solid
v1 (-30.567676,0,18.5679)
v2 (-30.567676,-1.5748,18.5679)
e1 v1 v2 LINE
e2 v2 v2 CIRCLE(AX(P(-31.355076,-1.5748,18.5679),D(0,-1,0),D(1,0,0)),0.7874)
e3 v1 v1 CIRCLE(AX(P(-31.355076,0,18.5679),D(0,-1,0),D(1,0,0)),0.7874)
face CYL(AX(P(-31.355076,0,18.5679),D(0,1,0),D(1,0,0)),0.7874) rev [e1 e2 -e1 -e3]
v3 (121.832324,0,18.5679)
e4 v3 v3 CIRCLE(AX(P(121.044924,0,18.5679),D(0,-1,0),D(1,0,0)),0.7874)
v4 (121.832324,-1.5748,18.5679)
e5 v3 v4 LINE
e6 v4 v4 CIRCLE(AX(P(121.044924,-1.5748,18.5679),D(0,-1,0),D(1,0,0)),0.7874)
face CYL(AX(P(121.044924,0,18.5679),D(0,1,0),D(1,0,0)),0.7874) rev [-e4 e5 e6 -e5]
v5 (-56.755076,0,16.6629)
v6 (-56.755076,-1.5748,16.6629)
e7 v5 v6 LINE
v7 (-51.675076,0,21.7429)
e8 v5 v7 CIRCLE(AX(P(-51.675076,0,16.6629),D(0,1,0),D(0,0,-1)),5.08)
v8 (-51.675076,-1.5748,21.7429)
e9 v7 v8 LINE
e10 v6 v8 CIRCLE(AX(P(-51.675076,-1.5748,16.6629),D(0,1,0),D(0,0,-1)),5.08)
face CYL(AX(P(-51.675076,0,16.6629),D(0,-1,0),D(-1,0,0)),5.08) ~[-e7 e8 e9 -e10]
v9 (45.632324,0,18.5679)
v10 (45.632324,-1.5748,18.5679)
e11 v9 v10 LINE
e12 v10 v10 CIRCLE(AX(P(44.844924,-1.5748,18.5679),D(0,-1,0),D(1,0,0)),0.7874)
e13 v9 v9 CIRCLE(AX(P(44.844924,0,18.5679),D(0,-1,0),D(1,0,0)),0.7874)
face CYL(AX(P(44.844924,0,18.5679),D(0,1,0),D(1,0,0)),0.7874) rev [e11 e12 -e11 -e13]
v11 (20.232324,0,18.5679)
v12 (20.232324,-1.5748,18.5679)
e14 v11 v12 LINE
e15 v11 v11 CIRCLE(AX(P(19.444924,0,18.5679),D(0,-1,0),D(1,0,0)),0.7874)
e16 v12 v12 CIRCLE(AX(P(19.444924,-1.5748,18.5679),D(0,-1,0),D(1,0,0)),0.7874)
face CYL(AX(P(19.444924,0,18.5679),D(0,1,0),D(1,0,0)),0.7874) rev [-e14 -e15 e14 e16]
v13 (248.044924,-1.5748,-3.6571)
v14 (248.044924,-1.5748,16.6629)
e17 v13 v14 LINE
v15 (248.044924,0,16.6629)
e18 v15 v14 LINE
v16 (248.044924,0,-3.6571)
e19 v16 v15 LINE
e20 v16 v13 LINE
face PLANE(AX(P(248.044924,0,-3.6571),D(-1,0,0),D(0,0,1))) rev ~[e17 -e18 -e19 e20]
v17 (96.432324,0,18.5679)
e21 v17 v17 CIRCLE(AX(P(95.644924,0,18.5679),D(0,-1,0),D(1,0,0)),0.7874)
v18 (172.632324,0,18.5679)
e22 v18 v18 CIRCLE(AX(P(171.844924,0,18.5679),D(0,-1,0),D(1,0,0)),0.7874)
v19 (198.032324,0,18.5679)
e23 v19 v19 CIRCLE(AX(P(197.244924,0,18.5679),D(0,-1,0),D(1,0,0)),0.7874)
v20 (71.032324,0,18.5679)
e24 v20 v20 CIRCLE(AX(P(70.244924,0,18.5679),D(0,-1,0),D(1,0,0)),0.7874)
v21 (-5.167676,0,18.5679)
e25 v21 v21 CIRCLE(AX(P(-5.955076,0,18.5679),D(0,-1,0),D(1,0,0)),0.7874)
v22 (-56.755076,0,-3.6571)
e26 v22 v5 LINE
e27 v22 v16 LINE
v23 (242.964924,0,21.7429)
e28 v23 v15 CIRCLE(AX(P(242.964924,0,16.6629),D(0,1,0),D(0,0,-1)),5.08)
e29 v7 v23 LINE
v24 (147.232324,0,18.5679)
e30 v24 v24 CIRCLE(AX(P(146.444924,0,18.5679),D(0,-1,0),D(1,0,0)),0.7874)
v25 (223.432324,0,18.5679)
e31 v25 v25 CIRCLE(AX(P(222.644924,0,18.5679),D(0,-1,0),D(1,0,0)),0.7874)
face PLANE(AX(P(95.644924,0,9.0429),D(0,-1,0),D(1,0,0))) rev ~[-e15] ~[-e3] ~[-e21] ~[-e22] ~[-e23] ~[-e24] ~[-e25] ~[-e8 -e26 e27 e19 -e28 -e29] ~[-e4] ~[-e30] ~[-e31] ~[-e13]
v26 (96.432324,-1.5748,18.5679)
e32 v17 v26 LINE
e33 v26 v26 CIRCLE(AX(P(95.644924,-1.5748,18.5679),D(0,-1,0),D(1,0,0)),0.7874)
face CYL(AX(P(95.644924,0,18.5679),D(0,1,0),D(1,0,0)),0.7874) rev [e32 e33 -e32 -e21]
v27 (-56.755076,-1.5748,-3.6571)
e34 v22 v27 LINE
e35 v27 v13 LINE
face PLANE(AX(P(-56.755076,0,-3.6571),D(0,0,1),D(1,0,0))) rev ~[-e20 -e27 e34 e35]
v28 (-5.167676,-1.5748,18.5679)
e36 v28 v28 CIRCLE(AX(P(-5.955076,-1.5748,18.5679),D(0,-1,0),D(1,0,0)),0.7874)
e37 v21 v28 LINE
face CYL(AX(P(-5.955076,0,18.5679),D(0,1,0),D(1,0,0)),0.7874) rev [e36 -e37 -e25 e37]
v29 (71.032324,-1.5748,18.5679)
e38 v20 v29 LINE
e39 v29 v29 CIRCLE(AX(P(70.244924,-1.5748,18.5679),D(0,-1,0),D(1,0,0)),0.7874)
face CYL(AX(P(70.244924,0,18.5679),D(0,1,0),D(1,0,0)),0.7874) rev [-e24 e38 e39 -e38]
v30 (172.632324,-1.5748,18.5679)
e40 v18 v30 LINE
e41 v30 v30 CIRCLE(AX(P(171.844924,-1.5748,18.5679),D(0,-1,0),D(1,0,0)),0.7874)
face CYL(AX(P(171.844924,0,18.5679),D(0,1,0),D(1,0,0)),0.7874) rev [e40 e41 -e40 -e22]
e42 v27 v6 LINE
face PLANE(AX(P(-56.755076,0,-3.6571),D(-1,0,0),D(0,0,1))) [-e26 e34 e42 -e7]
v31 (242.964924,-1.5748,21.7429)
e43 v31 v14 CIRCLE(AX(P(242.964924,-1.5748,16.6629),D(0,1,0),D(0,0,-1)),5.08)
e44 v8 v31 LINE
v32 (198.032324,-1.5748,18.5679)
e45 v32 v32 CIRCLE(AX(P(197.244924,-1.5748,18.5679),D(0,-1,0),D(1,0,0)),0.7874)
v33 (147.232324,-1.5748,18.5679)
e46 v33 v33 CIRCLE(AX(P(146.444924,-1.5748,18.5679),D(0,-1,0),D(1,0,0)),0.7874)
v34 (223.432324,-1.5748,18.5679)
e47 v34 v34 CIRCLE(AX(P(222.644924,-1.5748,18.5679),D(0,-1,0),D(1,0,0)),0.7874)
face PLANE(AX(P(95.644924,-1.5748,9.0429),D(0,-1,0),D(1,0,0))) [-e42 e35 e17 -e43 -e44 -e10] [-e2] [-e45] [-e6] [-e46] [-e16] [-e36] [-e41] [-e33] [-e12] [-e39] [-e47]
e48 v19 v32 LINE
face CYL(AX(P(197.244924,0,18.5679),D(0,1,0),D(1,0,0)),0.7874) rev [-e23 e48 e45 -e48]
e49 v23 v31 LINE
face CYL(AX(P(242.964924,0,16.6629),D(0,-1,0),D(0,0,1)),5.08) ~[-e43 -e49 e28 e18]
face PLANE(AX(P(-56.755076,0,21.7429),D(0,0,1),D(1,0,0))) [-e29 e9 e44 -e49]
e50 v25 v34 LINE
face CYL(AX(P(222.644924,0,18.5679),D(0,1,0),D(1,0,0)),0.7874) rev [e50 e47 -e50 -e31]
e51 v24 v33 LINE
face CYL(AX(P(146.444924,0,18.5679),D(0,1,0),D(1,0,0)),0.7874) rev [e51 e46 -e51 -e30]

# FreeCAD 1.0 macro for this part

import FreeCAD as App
import Part
import Sketcher
Q = App.Units.Quantity


def edges_at(feature, points):
    """Names of the edges that pass closest to the given points."""
    edges = feature.Shape.Edges
    near = lambda p: min(range(len(edges)), key=lambda i: edges[i].distToShape(Part.Vertex(*p))[0])
    return sorted({f"Edge{near(p) + 1}" for p in points})

doc = App.newDocument("Part")
body = doc.addObject("PartDesign::Body", "Body")

# Sketch on XZ plane
sketch1 = doc.addObject("Sketcher::SketchObject", "Sketch")
body.addObject(sketch1)
sketch1.AttachmentSupport = (doc.XZ_Plane, [""])
sketch1.MapMode = "FlatFace"
sketch1.addGeometry([
    Part.LineSegment(App.Vector(-56.8, 21.7, 0), App.Vector(-56.8, -3.7, 0)),  # 0
    Part.LineSegment(App.Vector(-56.8, -3.7, 0), App.Vector(248, -3.7, 0)),  # 1
    Part.LineSegment(App.Vector(248, -3.7, 0), App.Vector(248, 21.7, 0)),  # 2
    Part.LineSegment(App.Vector(248, 21.7, 0), App.Vector(-56.8, 21.7, 0)),  # 3
    Part.Circle(App.Vector(-31.4, 18.6, 0), App.Vector(0, 0, 1), 0.8),  # 4
    Part.Circle(App.Vector(-6, 18.6, 0), App.Vector(0, 0, 1), 0.8),  # 5
    Part.Circle(App.Vector(19.4, 18.6, 0), App.Vector(0, 0, 1), 0.8),  # 6
    Part.Circle(App.Vector(44.8, 18.6, 0), App.Vector(0, 0, 1), 0.8),  # 7
    Part.Circle(App.Vector(70.2, 18.6, 0), App.Vector(0, 0, 1), 0.8),  # 8
    Part.Circle(App.Vector(95.6, 18.6, 0), App.Vector(0, 0, 1), 0.8),  # 9
    Part.Circle(App.Vector(121, 18.6, 0), App.Vector(0, 0, 1), 0.8),  # 10
    Part.Circle(App.Vector(146.4, 18.6, 0), App.Vector(0, 0, 1), 0.8),  # 11
    Part.Circle(App.Vector(171.8, 18.6, 0), App.Vector(0, 0, 1), 0.8),  # 12
    Part.Circle(App.Vector(197.2, 18.6, 0), App.Vector(0, 0, 1), 0.8),  # 13
    Part.Circle(App.Vector(222.6, 18.6, 0), App.Vector(0, 0, 1), 0.8),  # 14
], False)
sketch1.addConstraint([
    Sketcher.Constraint("Coincident", 0, 2, 1, 1),
    Sketcher.Constraint("Coincident", 1, 2, 2, 1),
    Sketcher.Constraint("Coincident", 2, 2, 3, 1),
    Sketcher.Constraint("Coincident", 3, 2, 0, 1),
    Sketcher.Constraint("Vertical", 0),
    Sketcher.Constraint("Horizontal", 1),
    Sketcher.Constraint("Vertical", 2),
    Sketcher.Constraint("Horizontal", 3),
    Sketcher.Constraint("Equal", 4, 5),
    Sketcher.Constraint("Equal", 5, 6),
    Sketcher.Constraint("Equal", 6, 7),
    Sketcher.Constraint("Equal", 7, 8),
    Sketcher.Constraint("Equal", 8, 9),
    Sketcher.Constraint("Equal", 9, 10),
    Sketcher.Constraint("Equal", 10, 11),
    Sketcher.Constraint("Equal", 11, 12),
    Sketcher.Constraint("Equal", 12, 13),
    Sketcher.Constraint("Equal", 13, 14),
    Sketcher.Constraint("Horizontal", 4, 3, 5, 3),
    Sketcher.Constraint("Horizontal", 5, 3, 6, 3),
    Sketcher.Constraint("Horizontal", 6, 3, 7, 3),
    Sketcher.Constraint("Horizontal", 7, 3, 8, 3),
    Sketcher.Constraint("Horizontal", 8, 3, 9, 3),
    Sketcher.Constraint("Horizontal", 9, 3, 10, 3),
    Sketcher.Constraint("Horizontal", 10, 3, 11, 3),
    Sketcher.Constraint("Horizontal", 11, 3, 12, 3),
    Sketcher.Constraint("Horizontal", 12, 3, 13, 3),
    Sketcher.Constraint("Horizontal", 13, 3, 14, 3),
    Sketcher.Constraint("DistanceX", 1, 1, 1, 2, Q("12 in")),
    Sketcher.Constraint("DistanceY", 0, 2, 0, 1, Q("1 in")),
    Sketcher.Constraint("Diameter", 4, Q("0.062 in")),
    Sketcher.Constraint("DistanceX", 4, 3, 5, 3, Q("1 in")),
    Sketcher.Constraint("DistanceX", 5, 3, 6, 3, Q("1 in")),
    Sketcher.Constraint("DistanceX", 6, 3, 7, 3, Q("1 in")),
    Sketcher.Constraint("DistanceX", 7, 3, 8, 3, Q("1 in")),
    Sketcher.Constraint("DistanceX", 8, 3, 9, 3, Q("1 in")),
    Sketcher.Constraint("DistanceX", 9, 3, 10, 3, Q("1 in")),
    Sketcher.Constraint("DistanceX", 10, 3, 11, 3, Q("1 in")),
    Sketcher.Constraint("DistanceX", 11, 3, 12, 3, Q("1 in")),
    Sketcher.Constraint("DistanceX", 12, 3, 13, 3, Q("1 in")),
    Sketcher.Constraint("DistanceX", 13, 3, 14, 3, Q("1 in")),
    Sketcher.Constraint("DistanceX", 0, 2, 4, 3, Q("1 in")),
    Sketcher.Constraint("DistanceY", 0, 2, 4, 3, Q("0.875 in")),
    Sketcher.Constraint("DistanceY", -1, 1, 4, 3, 18.5679),
    Sketcher.Constraint("DistanceX", 4, 3, -1, 1, 31.355076),
])
pad1 = doc.addObject("PartDesign::Pad", "Pad")
body.addObject(pad1)
pad1.Profile = sketch1
pad1.Length = Q("0.062 in")
doc.recompute()

fillet = doc.addObject("PartDesign::Fillet", "Fillet")
body.addObject(fillet)
fillet.Base = (pad1, edges_at(pad1, [(248.045, -0.787, 21.743), (-56.755, -0.787, 21.743)]))
fillet.Radius = Q("0.2 in")

doc.recompute()
